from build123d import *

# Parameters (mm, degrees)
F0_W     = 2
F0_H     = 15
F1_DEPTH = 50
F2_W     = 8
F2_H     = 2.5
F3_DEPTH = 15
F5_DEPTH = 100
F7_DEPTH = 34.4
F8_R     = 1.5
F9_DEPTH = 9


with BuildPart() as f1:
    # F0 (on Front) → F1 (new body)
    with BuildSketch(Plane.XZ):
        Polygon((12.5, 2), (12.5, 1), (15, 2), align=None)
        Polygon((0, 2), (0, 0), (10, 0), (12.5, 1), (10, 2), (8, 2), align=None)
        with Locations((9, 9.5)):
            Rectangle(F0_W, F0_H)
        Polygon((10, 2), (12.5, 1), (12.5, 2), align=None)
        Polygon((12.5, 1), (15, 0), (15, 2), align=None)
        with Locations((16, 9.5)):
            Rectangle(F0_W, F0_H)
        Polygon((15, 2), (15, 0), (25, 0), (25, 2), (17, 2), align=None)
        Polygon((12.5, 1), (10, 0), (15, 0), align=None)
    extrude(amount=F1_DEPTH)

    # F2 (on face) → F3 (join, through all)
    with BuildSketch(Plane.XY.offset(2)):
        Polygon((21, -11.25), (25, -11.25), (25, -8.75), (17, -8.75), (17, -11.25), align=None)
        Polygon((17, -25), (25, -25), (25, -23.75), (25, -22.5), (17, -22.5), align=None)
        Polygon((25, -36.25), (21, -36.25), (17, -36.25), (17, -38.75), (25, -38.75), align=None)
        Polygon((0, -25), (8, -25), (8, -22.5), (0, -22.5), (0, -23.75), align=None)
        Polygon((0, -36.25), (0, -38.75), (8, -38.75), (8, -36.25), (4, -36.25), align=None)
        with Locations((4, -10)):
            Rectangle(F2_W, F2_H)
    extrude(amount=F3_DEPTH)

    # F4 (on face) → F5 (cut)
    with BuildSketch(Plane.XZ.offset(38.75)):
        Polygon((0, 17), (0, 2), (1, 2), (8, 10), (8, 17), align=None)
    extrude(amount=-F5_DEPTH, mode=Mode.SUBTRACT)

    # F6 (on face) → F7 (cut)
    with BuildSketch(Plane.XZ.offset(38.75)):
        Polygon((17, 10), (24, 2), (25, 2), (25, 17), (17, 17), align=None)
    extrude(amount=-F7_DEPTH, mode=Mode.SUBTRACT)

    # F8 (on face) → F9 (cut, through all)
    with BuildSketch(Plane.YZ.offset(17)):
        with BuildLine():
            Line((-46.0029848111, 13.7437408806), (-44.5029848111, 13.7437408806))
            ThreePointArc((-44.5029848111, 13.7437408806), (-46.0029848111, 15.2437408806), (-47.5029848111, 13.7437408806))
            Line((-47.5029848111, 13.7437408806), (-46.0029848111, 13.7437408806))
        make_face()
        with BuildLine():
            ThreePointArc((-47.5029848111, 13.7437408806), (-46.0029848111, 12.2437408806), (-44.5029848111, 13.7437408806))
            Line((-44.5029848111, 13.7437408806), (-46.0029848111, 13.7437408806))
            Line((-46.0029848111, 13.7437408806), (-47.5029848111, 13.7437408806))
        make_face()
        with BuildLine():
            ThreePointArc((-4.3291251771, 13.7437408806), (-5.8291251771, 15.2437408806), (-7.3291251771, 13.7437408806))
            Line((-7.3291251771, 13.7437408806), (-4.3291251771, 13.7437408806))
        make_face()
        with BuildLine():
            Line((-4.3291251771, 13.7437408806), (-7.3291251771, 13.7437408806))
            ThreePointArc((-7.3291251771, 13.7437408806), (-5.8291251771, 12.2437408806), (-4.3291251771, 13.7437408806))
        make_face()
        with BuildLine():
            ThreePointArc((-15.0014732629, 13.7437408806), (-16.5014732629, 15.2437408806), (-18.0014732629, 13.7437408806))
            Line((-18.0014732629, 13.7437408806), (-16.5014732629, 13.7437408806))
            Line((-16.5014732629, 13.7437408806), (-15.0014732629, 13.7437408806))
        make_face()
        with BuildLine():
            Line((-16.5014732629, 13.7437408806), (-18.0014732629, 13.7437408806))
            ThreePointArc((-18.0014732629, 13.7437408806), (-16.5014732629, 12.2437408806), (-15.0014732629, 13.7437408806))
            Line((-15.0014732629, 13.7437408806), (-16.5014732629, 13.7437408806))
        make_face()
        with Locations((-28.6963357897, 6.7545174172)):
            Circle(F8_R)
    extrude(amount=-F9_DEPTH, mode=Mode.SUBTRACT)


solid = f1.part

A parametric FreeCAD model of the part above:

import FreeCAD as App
import Part
import Sketcher

V = App.Vector


def add_polygon(sketch, points):
    """Adds a closed chain of lines whose ends are joined by coincident constraints."""
    first, n = sketch.GeometryCount, len(points)
    for a, b in zip(points, points[1:] + points[:1]):
        sketch.addGeometry(Part.LineSegment(App.Vector(*a, 0), App.Vector(*b, 0)), False)
    for i in range(n):
        sketch.addConstraint(Sketcher.Constraint("Coincident", first + i, 2, first + (i + 1) % n, 1))

doc = App.newDocument("Part")
body = doc.addObject("PartDesign::Body", "Body")

sketch1 = body.newObject("Sketcher::SketchObject", "Sketch")
sketch1.AttachmentSupport = (doc.getObject("XZ_Plane"), [""])
sketch1.MapMode = "FlatFace"
add_polygon(sketch1, [(15, 2), (10, 2), (10, 17), (8, 17), (8, 2), (0, 2), (0, 0), (25, 0), (25, 2), (17, 2), (17, 17), (15, 17)])
sketch1.addConstraint([
    Sketcher.Constraint("Horizontal", 0),
    Sketcher.Constraint("Vertical", 1),
    Sketcher.Constraint("Horizontal", 2),
    Sketcher.Constraint("Vertical", 3),
    Sketcher.Constraint("Horizontal", 4),
    Sketcher.Constraint("Vertical", 5),
    Sketcher.Constraint("Horizontal", 6),
    Sketcher.Constraint("Vertical", 7),
    Sketcher.Constraint("Horizontal", 8),
    Sketcher.Constraint("Vertical", 9),
    Sketcher.Constraint("Horizontal", 10),
    Sketcher.Constraint("Vertical", 11),
    Sketcher.Constraint("Coincident", 5, 2, -1, 1),
    Sketcher.Constraint("Horizontal", 0, 2, 3, 2),
    Sketcher.Constraint("Horizontal", 4, 2, 7, 2),
    Sketcher.Constraint("Horizontal", 2, 2, 9, 2),
    Sketcher.Constraint("Equal", 4, 8),
    Sketcher.Constraint("Equal", 2, 10),
    Sketcher.Constraint("Equal", 10, 5),
    Sketcher.Constraint("DistanceX", 0, 2, 0, 1, 5.0),
    Sketcher.Constraint("DistanceX", 2, 2, 2, 1, 2.0),
    Sketcher.Constraint("DistanceX", 4, 2, 4, 1, 8.0),
    Sketcher.Constraint("DistanceY", 1, 1, 1, 2, 15.0),
])
pad1 = body.newObject("PartDesign::Pad", "Pad")
pad1.Profile = sketch1
pad1.Length = 50

sketch2 = body.newObject("Sketcher::SketchObject", "Sketch001")
sketch2.AttachmentSupport = (doc.getObject("XY_Plane"), [""])
sketch2.MapMode = "FlatFace"
sketch2.AttachmentOffset = App.Placement(V(0, 0, 2), App.Rotation())
add_polygon(sketch2, [(25, -11.2), (25, -8.8), (17, -8.8), (17, -11.2)])
add_polygon(sketch2, [(17, -25), (25, -25), (25, -22.5), (17, -22.5)])
add_polygon(sketch2, [(25, -36.2), (17, -36.2), (17, -38.8), (25, -38.8)])
add_polygon(sketch2, [(0, -25), (8, -25), (8, -22.5), (0, -22.5)])
add_polygon(sketch2, [(0, -36.2), (0, -38.8), (8, -38.8), (8, -36.2)])
add_polygon(sketch2, [(0, -8.8), (0, -11.2), (8, -11.2), (8, -8.8)])
sketch2.addConstraint([
    Sketcher.Constraint("Vertical", 0),
    Sketcher.Constraint("Horizontal", 1),
    Sketcher.Constraint("Vertical", 2),
    Sketcher.Constraint("Horizontal", 3),
    Sketcher.Constraint("Horizontal", 4),
    Sketcher.Constraint("Vertical", 5),
    Sketcher.Constraint("Horizontal", 6),
    Sketcher.Constraint("Vertical", 7),
    Sketcher.Constraint("Horizontal", 8),
    Sketcher.Constraint("Vertical", 9),
    Sketcher.Constraint("Horizontal", 10),
    Sketcher.Constraint("Vertical", 11),
    Sketcher.Constraint("Horizontal", 12),
    Sketcher.Constraint("Vertical", 13),
    Sketcher.Constraint("Horizontal", 14),
    Sketcher.Constraint("Vertical", 15),
    Sketcher.Constraint("Vertical", 16),
    Sketcher.Constraint("Horizontal", 17),
    Sketcher.Constraint("Vertical", 18),
    Sketcher.Constraint("Horizontal", 19),
    Sketcher.Constraint("Vertical", 20),
    Sketcher.Constraint("Horizontal", 21),
    Sketcher.Constraint("Vertical", 22),
    Sketcher.Constraint("Horizontal", 23),
    Sketcher.Constraint("PointOnObject", 14, 2, -2),
    Sketcher.Constraint("PointOnObject", 16, 2, -2),
    Sketcher.Constraint("PointOnObject", 20, 2, -2),
    Sketcher.Constraint("Horizontal", 7, 2, 12, 2),
    Sketcher.Constraint("Horizontal", 6, 2, 13, 2),
    Sketcher.Constraint("Horizontal", 10, 2, 16, 2),
    Sketcher.Constraint("Horizontal", 11, 2, 18, 2),
    Sketcher.Constraint("Horizontal", 3, 2, 20, 2),
    Sketcher.Constraint("Horizontal", 1, 2, 22, 2),
    Sketcher.Constraint("Vertical", 3, 2, 4, 2),
    Sketcher.Constraint("Vertical", 2, 2, 6, 2),
    Sketcher.Constraint("Vertical", 7, 2, 8, 2),
    Sketcher.Constraint("Vertical", 5, 2, 10, 2),
    Sketcher.Constraint("Vertical", 13, 2, 17, 2),
    Sketcher.Constraint("Vertical", 18, 2, 21, 2),
    Sketcher.Constraint("Equal", 10, 12),
    Sketcher.Constraint("Equal", 2, 5),
    Sketcher.Constraint("Equal", 7, 9),
    Sketcher.Constraint("DistanceX", 1, 2, 1, 1, 8.0),
    Sketcher.Constraint("DistanceY", 0, 1, 0, 2, 2.5),
    Sketcher.Constraint("DistanceX", -1, 1, 0, 2, 25.0),
    Sketcher.Constraint("DistanceY", 4, 2, -1, 1, 25.0),
    Sketcher.Constraint("DistanceY", 8, 2, 2, 2, 25.0),
    Sketcher.Constraint("DistanceY", 0, 2, -1, 1, 8.75),
])
pad2 = body.newObject("PartDesign::Pad", "Pad001")
pad2.Profile = sketch2
pad2.Length = 15

sketch3 = body.newObject("Sketcher::SketchObject", "Sketch002")
sketch3.AttachmentSupport = (doc.getObject("XZ_Plane"), [""])
sketch3.MapMode = "FlatFace"
sketch3.AttachmentOffset = App.Placement(V(0, 0, 38.75), App.Rotation())
add_polygon(sketch3, [(0, 17), (0, 2), (1, 2), (8, 10), (8, 17)])
sketch3.addConstraint([
    Sketcher.Constraint("Vertical", 0),
    Sketcher.Constraint("Horizontal", 1),
    Sketcher.Constraint("Vertical", 3),
    Sketcher.Constraint("Horizontal", 4),
    Sketcher.Constraint("PointOnObject", 0, 2, -2),
    Sketcher.Constraint("DistanceX", 1, 1, 1, 2, 1.0),
    Sketcher.Constraint("DistanceX", 4, 2, 4, 1, 8.0),
    Sketcher.Constraint("DistanceY", 0, 2, 0, 1, 15.0),
    Sketcher.Constraint("DistanceY", 3, 1, 3, 2, 7.0),
    Sketcher.Constraint("DistanceY", -1, 1, 0, 2, 2.0),
])
pocket1 = body.newObject("PartDesign::Pocket", "Pocket")
pocket1.Profile = sketch3
pocket1.Length = 100

sketch4 = body.newObject("Sketcher::SketchObject", "Sketch003")
sketch4.AttachmentSupport = (doc.getObject("XZ_Plane"), [""])
sketch4.MapMode = "FlatFace"
sketch4.AttachmentOffset = App.Placement(V(0, 0, 38.75), App.Rotation())
add_polygon(sketch4, [(17, 10), (24, 2), (25, 2), (25, 17), (17, 17)])
sketch4.addConstraint([
    Sketcher.Constraint("Horizontal", 1),
    Sketcher.Constraint("Vertical", 2),
    Sketcher.Constraint("Horizontal", 3),
    Sketcher.Constraint("Vertical", 4),
    Sketcher.Constraint("DistanceX", 1, 1, 1, 2, 1.0),
    Sketcher.Constraint("DistanceX", 3, 2, 3, 1, 8.0),
    Sketcher.Constraint("DistanceY", 2, 1, 2, 2, 15.0),
    Sketcher.Constraint("DistanceY", 4, 2, 4, 1, 7.0),
    Sketcher.Constraint("DistanceX", -1, 1, 0, 2, 24.0),
    Sketcher.Constraint("DistanceY", -1, 1, 0, 2, 2.0),
])
pocket2 = body.newObject("PartDesign::Pocket", "Pocket001")
pocket2.Profile = sketch4
pocket2.Length = 34.4

sketch5 = body.newObject("Sketcher::SketchObject", "Sketch004")
sketch5.AttachmentSupport = (doc.getObject("YZ_Plane"), [""])
sketch5.MapMode = "FlatFace"
sketch5.AttachmentOffset = App.Placement(V(0, 0, 17), App.Rotation())
sketch5.addGeometry([
    Part.Circle(V(-46, 13.7, 0), V(0, 0, 1), 1.5),
    Part.Circle(V(-5.8, 13.7, 0), V(0, 0, 1), 1.5),
    Part.Circle(V(-16.5, 13.7, 0), V(0, 0, 1), 1.5),
    Part.Circle(V(-28.7, 6.8, 0), V(0, 0, 1), 1.5),
], False)
sketch5.addConstraint([
    Sketcher.Constraint("Equal", 0, 1),
    Sketcher.Constraint("Equal", 1, 2),
    Sketcher.Constraint("Equal", 2, 3),
    Sketcher.Constraint("Horizontal", 0, 3, 1, 3),
    Sketcher.Constraint("Horizontal", 1, 3, 2, 3),
    Sketcher.Constraint("Diameter", 0, 3.0),
    Sketcher.Constraint("DistanceY", -1, 1, 0, 3, 13.743741),
    Sketcher.Constraint("DistanceX", 0, 3, 1, 3, 40.17386),
    Sketcher.Constraint("DistanceX", 2, 3, 1, 3, 10.672348),
    Sketcher.Constraint("DistanceX", 0, 3, 3, 3, 17.306649),
    Sketcher.Constraint("DistanceX", 0, 3, -1, 1, 46.002985),
    Sketcher.Constraint("DistanceY", -1, 1, 3, 3, 6.754517),
])
pocket3 = body.newObject("PartDesign::Pocket", "Pocket002")
pocket3.Profile = sketch5
pocket3.Type = "ThroughAll"

doc.recompute()
